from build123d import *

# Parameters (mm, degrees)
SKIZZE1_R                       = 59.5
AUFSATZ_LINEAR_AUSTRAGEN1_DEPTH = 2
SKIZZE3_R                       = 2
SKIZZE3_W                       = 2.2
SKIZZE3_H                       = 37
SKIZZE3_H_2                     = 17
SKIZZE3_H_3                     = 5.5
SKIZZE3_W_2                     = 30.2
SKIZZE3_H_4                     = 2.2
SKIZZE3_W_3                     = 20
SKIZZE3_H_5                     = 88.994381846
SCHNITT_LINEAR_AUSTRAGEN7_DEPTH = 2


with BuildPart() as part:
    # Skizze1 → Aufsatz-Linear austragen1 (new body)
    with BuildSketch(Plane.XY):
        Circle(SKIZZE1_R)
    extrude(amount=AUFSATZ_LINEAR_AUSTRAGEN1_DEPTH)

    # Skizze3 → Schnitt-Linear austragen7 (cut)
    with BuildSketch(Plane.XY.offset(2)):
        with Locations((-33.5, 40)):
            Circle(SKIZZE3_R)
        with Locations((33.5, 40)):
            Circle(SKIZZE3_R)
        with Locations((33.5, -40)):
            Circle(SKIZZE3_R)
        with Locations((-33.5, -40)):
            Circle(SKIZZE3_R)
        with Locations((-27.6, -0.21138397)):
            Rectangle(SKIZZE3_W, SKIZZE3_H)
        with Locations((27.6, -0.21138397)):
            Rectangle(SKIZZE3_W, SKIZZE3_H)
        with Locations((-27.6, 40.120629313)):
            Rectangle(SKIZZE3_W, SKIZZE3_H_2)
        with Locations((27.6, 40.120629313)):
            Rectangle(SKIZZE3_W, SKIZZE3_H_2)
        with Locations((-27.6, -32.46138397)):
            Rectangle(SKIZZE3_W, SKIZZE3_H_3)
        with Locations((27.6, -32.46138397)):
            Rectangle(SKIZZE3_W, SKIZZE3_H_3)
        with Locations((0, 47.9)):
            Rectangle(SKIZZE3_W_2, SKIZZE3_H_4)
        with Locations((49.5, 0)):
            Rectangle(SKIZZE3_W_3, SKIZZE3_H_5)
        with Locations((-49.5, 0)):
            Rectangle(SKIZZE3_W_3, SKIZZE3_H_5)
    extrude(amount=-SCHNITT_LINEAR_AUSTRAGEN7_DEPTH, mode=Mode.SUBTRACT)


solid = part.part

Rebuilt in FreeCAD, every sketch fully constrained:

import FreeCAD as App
import Part
import Sketcher

V = App.Vector


def add_polygon(sketch, points):
    """Adds a closed chain of lines whose ends are joined by coincident constraints."""
    first, n = sketch.GeometryCount, len(points)
    for a, b in zip(points, points[1:] + points[:1]):
        sketch.addGeometry(Part.LineSegment(App.Vector(*a, 0), App.Vector(*b, 0)), False)
    for i in range(n):
        sketch.addConstraint(Sketcher.Constraint("Coincident", first + i, 2, first + (i + 1) % n, 1))

doc = App.newDocument("Part")
body = doc.addObject("PartDesign::Body", "Body")

# Sketch on XY plane
sketch1 = body.newObject("Sketcher::SketchObject", "Sketch")
sketch1.AttachmentSupport = (doc.getObject("XY_Plane"), [""])
sketch1.MapMode = "FlatFace"
sketch1.addGeometry(Part.Circle(V(0, 0, 0), V(0, 0, 1), 60), False)
sketch1.addConstraint(Sketcher.Constraint("Coincident", 0, 3, -1, 1))
sketch1.addConstraint(Sketcher.Constraint("Diameter", 0, 119.0))
pad1 = body.newObject("PartDesign::Pad", "Pad")
pad1.Profile = sketch1
pad1.Length = 2

# Sketch on XY plane
sketch2 = body.newObject("Sketcher::SketchObject", "Sketch001")
sketch2.AttachmentSupport = (doc.getObject("XY_Plane"), [""])
sketch2.MapMode = "FlatFace"
sketch2.AttachmentOffset = App.Placement(V(0, 0, 2), App.Rotation())
sketch2.addGeometry(Part.Circle(V(-33.5, 40, 0), V(0, 0, 1), 2), False)  # 0
sketch2.addGeometry(Part.Circle(V(33.5, 40, 0), V(0, 0, 1), 2), False)  # 1
sketch2.addGeometry(Part.Circle(V(33.5, -40, 0), V(0, 0, 1), 2), False)  # 2
sketch2.addGeometry(Part.Circle(V(-33.5, -40, 0), V(0, 0, 1), 2), False)  # 3
add_polygon(sketch2, [(-28.7, 18.3), (-28.7, -18.7), (-26.5, -18.7), (-26.5, 18.3)])  # lines 4-7
add_polygon(sketch2, [(26.5, 18.3), (26.5, -18.7), (28.7, -18.7), (28.7, 18.3)])  # lines 8-11
add_polygon(sketch2, [(-28.7, 48.6), (-28.7, 31.6), (-26.5, 31.6), (-26.5, 48.6)])  # lines 12-15
add_polygon(sketch2, [(26.5, 48.6), (26.5, 31.6), (28.7, 31.6), (28.7, 48.6)])  # lines 16-19
add_polygon(sketch2, [(-28.7, -29.7), (-28.7, -35.2), (-26.5, -35.2), (-26.5, -29.7)])  # lines 20-23
add_polygon(sketch2, [(26.5, -29.7), (26.5, -35.2), (28.7, -35.2), (28.7, -29.7)])  # lines 24-27
add_polygon(sketch2, [(-15.1, 49), (-15.1, 46.8), (15.1, 46.8), (15.1, 49)])  # lines 28-31
add_polygon(sketch2, [(39.5, 44.5), (39.5, -44.5), (59.5, -44.5), (59.5, 44.5)])  # lines 32-35
add_polygon(sketch2, [(-59.5, 44.5), (-59.5, -44.5), (-39.5, -44.5), (-39.5, 44.5)])  # lines 36-39
sketch2.addConstraint(Sketcher.Constraint("Vertical", 4))
sketch2.addConstraint(Sketcher.Constraint("Horizontal", 5))
sketch2.addConstraint(Sketcher.Constraint("Vertical", 6))
sketch2.addConstraint(Sketcher.Constraint("Horizontal", 7))
sketch2.addConstraint(Sketcher.Constraint("Vertical", 8))
sketch2.addConstraint(Sketcher.Constraint("Horizontal", 9))
sketch2.addConstraint(Sketcher.Constraint("Vertical", 10))
sketch2.addConstraint(Sketcher.Constraint("Horizontal", 11))
sketch2.addConstraint(Sketcher.Constraint("Vertical", 12))
sketch2.addConstraint(Sketcher.Constraint("Horizontal", 13))
sketch2.addConstraint(Sketcher.Constraint("Vertical", 14))
sketch2.addConstraint(Sketcher.Constraint("Horizontal", 15))
sketch2.addConstraint(Sketcher.Constraint("Vertical", 16))
sketch2.addConstraint(Sketcher.Constraint("Horizontal", 17))
sketch2.addConstraint(Sketcher.Constraint("Vertical", 18))
sketch2.addConstraint(Sketcher.Constraint("Horizontal", 19))
sketch2.addConstraint(Sketcher.Constraint("Vertical", 20))
sketch2.addConstraint(Sketcher.Constraint("Horizontal", 21))
sketch2.addConstraint(Sketcher.Constraint("Vertical", 22))
sketch2.addConstraint(Sketcher.Constraint("Horizontal", 23))
sketch2.addConstraint(Sketcher.Constraint("Vertical", 24))
sketch2.addConstraint(Sketcher.Constraint("Horizontal", 25))
sketch2.addConstraint(Sketcher.Constraint("Vertical", 26))
sketch2.addConstraint(Sketcher.Constraint("Horizontal", 27))
sketch2.addConstraint(Sketcher.Constraint("Vertical", 28))
sketch2.addConstraint(Sketcher.Constraint("Horizontal", 29))
sketch2.addConstraint(Sketcher.Constraint("Vertical", 30))
sketch2.addConstraint(Sketcher.Constraint("Horizontal", 31))
sketch2.addConstraint(Sketcher.Constraint("Vertical", 32))
sketch2.addConstraint(Sketcher.Constraint("Horizontal", 33))
sketch2.addConstraint(Sketcher.Constraint("Vertical", 34))
sketch2.addConstraint(Sketcher.Constraint("Horizontal", 35))
sketch2.addConstraint(Sketcher.Constraint("Vertical", 36))
sketch2.addConstraint(Sketcher.Constraint("Horizontal", 37))
sketch2.addConstraint(Sketcher.Constraint("Vertical", 38))
sketch2.addConstraint(Sketcher.Constraint("Horizontal", 39))
sketch2.addConstraint(Sketcher.Constraint("Equal", 0, 1))
sketch2.addConstraint(Sketcher.Constraint("Equal", 1, 2))
sketch2.addConstraint(Sketcher.Constraint("Equal", 2, 3))
sketch2.addConstraint(Sketcher.Constraint("Symmetric", 0, 3, 2, 3, -1, 1))
sketch2.addConstraint(Sketcher.Constraint("Symmetric", 1, 3, 3, 3, -1, 1))
sketch2.addConstraint(Sketcher.Constraint("Symmetric", 34, 2, 36, 2, -1, 1))
sketch2.addConstraint(Sketcher.Constraint("Symmetric", 32, 2, 38, 2, -1, 1))
sketch2.addConstraint(Sketcher.Constraint("Symmetric", 0, 3, 1, 3, -2))
sketch2.addConstraint(Sketcher.Constraint("Symmetric", 5, 2, 8, 2, -2))
sketch2.addConstraint(Sketcher.Constraint("Symmetric", 7, 2, 10, 2, -2))
sketch2.addConstraint(Sketcher.Constraint("Symmetric", 13, 2, 16, 2, -2))
sketch2.addConstraint(Sketcher.Constraint("Symmetric", 15, 2, 18, 2, -2))
sketch2.addConstraint(Sketcher.Constraint("Symmetric", 21, 2, 24, 2, -2))
sketch2.addConstraint(Sketcher.Constraint("Symmetric", 23, 2, 26, 2, -2))
sketch2.addConstraint(Sketcher.Constraint("Horizontal", 33, 2, 36, 2))
sketch2.addConstraint(Sketcher.Constraint("Vertical", 7, 2, 12, 2))
sketch2.addConstraint(Sketcher.Constraint("Vertical", 6, 2, 13, 2))
sketch2.addConstraint(Sketcher.Constraint("Vertical", 15, 2, 20, 2))
sketch2.addConstraint(Sketcher.Constraint("Vertical", 14, 2, 21, 2))
sketch2.addConstraint(Sketcher.Constraint("Equal", 27, 28))
sketch2.addConstraint(Sketcher.Constraint("Diameter", 0, 4.0))
sketch2.addConstraint(Sketcher.Constraint("DistanceX", 33, 1, 33, 2, 20.0))
sketch2.addConstraint(Sketcher.Constraint("DistanceY", 4, 2, 4, 1, 37.0))
sketch2.addConstraint(Sketcher.Constraint("DistanceY", 12, 2, 12, 1, 17.0))
sketch2.addConstraint(Sketcher.Constraint("DistanceX", 5, 1, 5, 2, 2.2))
sketch2.addConstraint(Sketcher.Constraint("DistanceX", 29, 1, 29, 2, 30.2))
sketch2.addConstraint(Sketcher.Constraint("DistanceY", 20, 2, 20, 1, 5.5))
sketch2.addConstraint(Sketcher.Constraint("DistanceY", -1, 1, 0, 3, 40.0))
sketch2.addConstraint(Sketcher.Constraint("DistanceY", -1, 1, 30, 2, 49.0))
sketch2.addConstraint(Sketcher.Constraint("DistanceX", 0, 3, 1, 3, 67.0))
sketch2.addConstraint(Sketcher.Constraint("DistanceX", 3, 3, 5, 2, 7.0))
sketch2.addConstraint(Sketcher.Constraint("DistanceY", 22, 2, 5, 2, 11.0))
sketch2.addConstraint(Sketcher.Constraint("DistanceX", 2, 3, 32, 2, 6.0))
sketch2.addConstraint(Sketcher.Constraint("DistanceX", 28, 2, -1, 1, 15.1))
sketch2.addConstraint(Sketcher.Constraint("DistanceY", 32, 2, 32, 1, 88.994382))
sketch2.addConstraint(Sketcher.Constraint("DistanceY", -1, 1, 12, 2, 31.620629))
sketch2.addConstraint(Sketcher.Constraint("DistanceY", 4, 2, -1, 1, 18.711384))
pocket1 = body.newObject("PartDesign::Pocket", "Pocket")
pocket1.Profile = sketch2
pocket1.Length = 2

doc.recompute()
